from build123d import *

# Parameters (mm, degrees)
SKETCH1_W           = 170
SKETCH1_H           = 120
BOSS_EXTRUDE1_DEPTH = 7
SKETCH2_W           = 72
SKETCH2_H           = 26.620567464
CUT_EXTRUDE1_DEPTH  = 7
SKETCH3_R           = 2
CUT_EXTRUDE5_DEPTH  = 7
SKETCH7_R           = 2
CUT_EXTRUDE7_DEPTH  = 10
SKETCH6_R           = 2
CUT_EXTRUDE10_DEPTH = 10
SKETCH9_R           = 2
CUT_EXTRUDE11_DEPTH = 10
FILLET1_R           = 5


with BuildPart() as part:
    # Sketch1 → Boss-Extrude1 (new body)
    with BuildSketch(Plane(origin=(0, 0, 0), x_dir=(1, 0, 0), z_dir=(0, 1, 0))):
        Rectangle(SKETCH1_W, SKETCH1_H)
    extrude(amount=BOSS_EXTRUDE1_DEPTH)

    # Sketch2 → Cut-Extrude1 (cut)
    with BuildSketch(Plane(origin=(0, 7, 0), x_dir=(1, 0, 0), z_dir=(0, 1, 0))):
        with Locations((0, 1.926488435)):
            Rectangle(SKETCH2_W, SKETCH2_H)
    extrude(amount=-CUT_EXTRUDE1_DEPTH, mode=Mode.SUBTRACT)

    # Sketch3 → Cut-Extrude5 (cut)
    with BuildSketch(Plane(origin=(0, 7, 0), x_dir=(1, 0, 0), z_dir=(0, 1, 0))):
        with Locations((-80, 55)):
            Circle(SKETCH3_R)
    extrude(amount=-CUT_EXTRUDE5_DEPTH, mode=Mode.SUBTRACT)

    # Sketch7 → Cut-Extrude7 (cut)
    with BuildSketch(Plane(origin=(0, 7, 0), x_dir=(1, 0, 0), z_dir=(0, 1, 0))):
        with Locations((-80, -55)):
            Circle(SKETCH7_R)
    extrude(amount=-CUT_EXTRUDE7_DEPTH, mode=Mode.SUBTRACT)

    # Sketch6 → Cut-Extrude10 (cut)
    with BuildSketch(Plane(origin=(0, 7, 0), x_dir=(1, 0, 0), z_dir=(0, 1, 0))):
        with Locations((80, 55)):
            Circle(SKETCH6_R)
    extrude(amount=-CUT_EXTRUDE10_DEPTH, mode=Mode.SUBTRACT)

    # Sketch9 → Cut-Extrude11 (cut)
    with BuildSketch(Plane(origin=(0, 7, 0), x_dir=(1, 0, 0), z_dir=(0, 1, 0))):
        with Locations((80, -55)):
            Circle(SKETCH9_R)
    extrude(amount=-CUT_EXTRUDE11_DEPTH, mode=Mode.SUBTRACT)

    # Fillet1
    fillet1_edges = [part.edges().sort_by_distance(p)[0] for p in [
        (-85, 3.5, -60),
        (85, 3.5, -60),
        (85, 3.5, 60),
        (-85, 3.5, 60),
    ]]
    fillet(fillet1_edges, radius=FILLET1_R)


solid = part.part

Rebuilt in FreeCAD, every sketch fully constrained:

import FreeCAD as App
import Part
import Sketcher
Q = App.Units.Quantity


def edges_at(feature, points):
    """Names of the edges that pass closest to the given points."""
    edges = feature.Shape.Edges
    near = lambda p: min(range(len(edges)), key=lambda i: edges[i].distToShape(Part.Vertex(*p))[0])
    return sorted({f"Edge{near(p) + 1}" for p in points})

doc = App.newDocument("Part")
body = doc.addObject("PartDesign::Body", "Body")

# Sketch on XZ plane
sketch1 = doc.addObject("Sketcher::SketchObject", "Sketch")
body.addObject(sketch1)
sketch1.AttachmentSupport = (doc.XZ_Plane, [""])
sketch1.MapMode = "FlatFace"
sketch1.addGeometry(Part.LineSegment(App.Vector(-85, -60, 0), App.Vector(-85, 60, 0)), False)
sketch1.addGeometry(Part.LineSegment(App.Vector(-85, 60, 0), App.Vector(85, 60, 0)), False)
sketch1.addGeometry(Part.LineSegment(App.Vector(85, 60, 0), App.Vector(85, -60, 0)), False)
sketch1.addGeometry(Part.LineSegment(App.Vector(85, -60, 0), App.Vector(-85, -60, 0)), False)
sketch1.addConstraint(Sketcher.Constraint("Coincident", 0, 2, 1, 1))
sketch1.addConstraint(Sketcher.Constraint("Coincident", 1, 2, 2, 1))
sketch1.addConstraint(Sketcher.Constraint("Coincident", 2, 2, 3, 1))
sketch1.addConstraint(Sketcher.Constraint("Coincident", 3, 2, 0, 1))
sketch1.addConstraint(Sketcher.Constraint("Vertical", 0))
sketch1.addConstraint(Sketcher.Constraint("Horizontal", 1))
sketch1.addConstraint(Sketcher.Constraint("Vertical", 2))
sketch1.addConstraint(Sketcher.Constraint("Horizontal", 3))
sketch1.addConstraint(Sketcher.Constraint("Symmetric", 0, 2, 2, 2, -1, 1))
sketch1.addConstraint(Sketcher.Constraint("DistanceX", 1, 1, 1, 2, Q("170 mm")))
sketch1.addConstraint(Sketcher.Constraint("DistanceY", 0, 1, 0, 2, Q("120 mm")))
pad1 = doc.addObject("PartDesign::Pad", "Pad")
body.addObject(pad1)
pad1.Profile = sketch1
pad1.Length = 7
pad1.Reversed = True

# Sketch on XZ plane
sketch2 = doc.addObject("Sketcher::SketchObject", "Sketch001")
body.addObject(sketch2)
sketch2.AttachmentSupport = (doc.XZ_Plane, [""])
sketch2.MapMode = "FlatFace"
sketch2.AttachmentOffset = App.Placement(App.Vector(0, 0, -7), App.Rotation())
sketch2.addGeometry(Part.LineSegment(App.Vector(-36, -15, 0), App.Vector(-36, 11, 0)), False)
sketch2.addGeometry(Part.LineSegment(App.Vector(-36, 11, 0), App.Vector(36, 11, 0)), False)
sketch2.addGeometry(Part.LineSegment(App.Vector(36, 11, 0), App.Vector(36, -15, 0)), False)
sketch2.addGeometry(Part.LineSegment(App.Vector(36, -15, 0), App.Vector(-36, -15, 0)), False)
sketch2.addConstraint(Sketcher.Constraint("Coincident", 0, 2, 1, 1))
sketch2.addConstraint(Sketcher.Constraint("Coincident", 1, 2, 2, 1))
sketch2.addConstraint(Sketcher.Constraint("Coincident", 2, 2, 3, 1))
sketch2.addConstraint(Sketcher.Constraint("Coincident", 3, 2, 0, 1))
sketch2.addConstraint(Sketcher.Constraint("Vertical", 0))
sketch2.addConstraint(Sketcher.Constraint("Horizontal", 1))
sketch2.addConstraint(Sketcher.Constraint("Vertical", 2))
sketch2.addConstraint(Sketcher.Constraint("Horizontal", 3))
sketch2.addConstraint(Sketcher.Constraint("DistanceX", 1, 1, 1, 2, Q("72 mm")))
sketch2.addConstraint(Sketcher.Constraint("DistanceX", 0, 2, -1, 1, Q("36 mm")))
sketch2.addConstraint(Sketcher.Constraint("DistanceY", 0, 1, 0, 2, Q("26.620567 mm")))
sketch2.addConstraint(Sketcher.Constraint("DistanceY", -1, 1, 0, 2, Q("11.383795 mm")))
pocket1 = doc.addObject("PartDesign::Pocket", "Pocket")
body.addObject(pocket1)
pocket1.Profile = sketch2
pocket1.Length = 7
pocket1.Reversed = True

# Sketch on XZ plane
sketch3 = doc.addObject("Sketcher::SketchObject", "Sketch002")
body.addObject(sketch3)
sketch3.AttachmentSupport = (doc.XZ_Plane, [""])
sketch3.MapMode = "FlatFace"
sketch3.AttachmentOffset = App.Placement(App.Vector(0, 0, -7), App.Rotation())
sketch3.addGeometry(Part.Circle(App.Vector(-80, -55, 0), App.Vector(0, 0, 1), 2), False)
sketch3.addConstraint(Sketcher.Constraint("Diameter", 0, Q("4 mm")))
sketch3.addConstraint(Sketcher.Constraint("DistanceX", 0, 3, -1, 1, Q("80 mm")))
sketch3.addConstraint(Sketcher.Constraint("DistanceY", 0, 3, -1, 1, Q("55 mm")))
pocket2 = doc.addObject("PartDesign::Pocket", "Pocket001")
body.addObject(pocket2)
pocket2.Profile = sketch3
pocket2.Length = 7
pocket2.Reversed = True

# Sketch on XZ plane
sketch4 = doc.addObject("Sketcher::SketchObject", "Sketch003")
body.addObject(sketch4)
sketch4.AttachmentSupport = (doc.XZ_Plane, [""])
sketch4.MapMode = "FlatFace"
sketch4.AttachmentOffset = App.Placement(App.Vector(0, 0, -7), App.Rotation())
sketch4.addGeometry(Part.Circle(App.Vector(-80, 55, 0), App.Vector(0, 0, 1), 2), False)
sketch4.addConstraint(Sketcher.Constraint("Diameter", 0, Q("4 mm")))
sketch4.addConstraint(Sketcher.Constraint("DistanceX", 0, 3, -1, 1, Q("80 mm")))
sketch4.addConstraint(Sketcher.Constraint("DistanceY", -1, 1, 0, 3, Q("55 mm")))
pocket3 = doc.addObject("PartDesign::Pocket", "Pocket002")
body.addObject(pocket3)
pocket3.Profile = sketch4
pocket3.Length = 10
pocket3.Reversed = True

# Sketch on XZ plane
sketch5 = doc.addObject("Sketcher::SketchObject", "Sketch004")
body.addObject(sketch5)
sketch5.AttachmentSupport = (doc.XZ_Plane, [""])
sketch5.MapMode = "FlatFace"
sketch5.AttachmentOffset = App.Placement(App.Vector(0, 0, -7), App.Rotation())
sketch5.addGeometry(Part.Circle(App.Vector(80, -55, 0), App.Vector(0, 0, 1), 2), False)
sketch5.addConstraint(Sketcher.Constraint("Diameter", 0, Q("4 mm")))
sketch5.addConstraint(Sketcher.Constraint("DistanceX", -1, 1, 0, 3, Q("80 mm")))
sketch5.addConstraint(Sketcher.Constraint("DistanceY", 0, 3, -1, 1, Q("55 mm")))
pocket4 = doc.addObject("PartDesign::Pocket", "Pocket003")
body.addObject(pocket4)
pocket4.Profile = sketch5
pocket4.Length = 10
pocket4.Reversed = True

# Sketch on XZ plane
sketch6 = doc.addObject("Sketcher::SketchObject", "Sketch005")
body.addObject(sketch6)
sketch6.AttachmentSupport = (doc.XZ_Plane, [""])
sketch6.MapMode = "FlatFace"
sketch6.AttachmentOffset = App.Placement(App.Vector(0, 0, -7), App.Rotation())
sketch6.addGeometry(Part.Circle(App.Vector(80, 55, 0), App.Vector(0, 0, 1), 2), False)
sketch6.addConstraint(Sketcher.Constraint("Diameter", 0, Q("4 mm")))
sketch6.addConstraint(Sketcher.Constraint("DistanceX", -1, 1, 0, 3, Q("80 mm")))
sketch6.addConstraint(Sketcher.Constraint("DistanceY", -1, 1, 0, 3, Q("55 mm")))
pocket5 = doc.addObject("PartDesign::Pocket", "Pocket004")
body.addObject(pocket5)
pocket5.Profile = sketch6
pocket5.Length = 10
pocket5.Reversed = True
doc.recompute()

fillet = doc.addObject("PartDesign::Fillet", "Fillet")
body.addObject(fillet)
fillet.Base = (pocket5, edges_at(pocket5, [
    (-85, 3.5, -60),
    (85, 3.5, -60),
    (85, 3.5, 60),
    (-85, 3.5, 60),
]))
fillet.Radius = 5

doc.recompute()
